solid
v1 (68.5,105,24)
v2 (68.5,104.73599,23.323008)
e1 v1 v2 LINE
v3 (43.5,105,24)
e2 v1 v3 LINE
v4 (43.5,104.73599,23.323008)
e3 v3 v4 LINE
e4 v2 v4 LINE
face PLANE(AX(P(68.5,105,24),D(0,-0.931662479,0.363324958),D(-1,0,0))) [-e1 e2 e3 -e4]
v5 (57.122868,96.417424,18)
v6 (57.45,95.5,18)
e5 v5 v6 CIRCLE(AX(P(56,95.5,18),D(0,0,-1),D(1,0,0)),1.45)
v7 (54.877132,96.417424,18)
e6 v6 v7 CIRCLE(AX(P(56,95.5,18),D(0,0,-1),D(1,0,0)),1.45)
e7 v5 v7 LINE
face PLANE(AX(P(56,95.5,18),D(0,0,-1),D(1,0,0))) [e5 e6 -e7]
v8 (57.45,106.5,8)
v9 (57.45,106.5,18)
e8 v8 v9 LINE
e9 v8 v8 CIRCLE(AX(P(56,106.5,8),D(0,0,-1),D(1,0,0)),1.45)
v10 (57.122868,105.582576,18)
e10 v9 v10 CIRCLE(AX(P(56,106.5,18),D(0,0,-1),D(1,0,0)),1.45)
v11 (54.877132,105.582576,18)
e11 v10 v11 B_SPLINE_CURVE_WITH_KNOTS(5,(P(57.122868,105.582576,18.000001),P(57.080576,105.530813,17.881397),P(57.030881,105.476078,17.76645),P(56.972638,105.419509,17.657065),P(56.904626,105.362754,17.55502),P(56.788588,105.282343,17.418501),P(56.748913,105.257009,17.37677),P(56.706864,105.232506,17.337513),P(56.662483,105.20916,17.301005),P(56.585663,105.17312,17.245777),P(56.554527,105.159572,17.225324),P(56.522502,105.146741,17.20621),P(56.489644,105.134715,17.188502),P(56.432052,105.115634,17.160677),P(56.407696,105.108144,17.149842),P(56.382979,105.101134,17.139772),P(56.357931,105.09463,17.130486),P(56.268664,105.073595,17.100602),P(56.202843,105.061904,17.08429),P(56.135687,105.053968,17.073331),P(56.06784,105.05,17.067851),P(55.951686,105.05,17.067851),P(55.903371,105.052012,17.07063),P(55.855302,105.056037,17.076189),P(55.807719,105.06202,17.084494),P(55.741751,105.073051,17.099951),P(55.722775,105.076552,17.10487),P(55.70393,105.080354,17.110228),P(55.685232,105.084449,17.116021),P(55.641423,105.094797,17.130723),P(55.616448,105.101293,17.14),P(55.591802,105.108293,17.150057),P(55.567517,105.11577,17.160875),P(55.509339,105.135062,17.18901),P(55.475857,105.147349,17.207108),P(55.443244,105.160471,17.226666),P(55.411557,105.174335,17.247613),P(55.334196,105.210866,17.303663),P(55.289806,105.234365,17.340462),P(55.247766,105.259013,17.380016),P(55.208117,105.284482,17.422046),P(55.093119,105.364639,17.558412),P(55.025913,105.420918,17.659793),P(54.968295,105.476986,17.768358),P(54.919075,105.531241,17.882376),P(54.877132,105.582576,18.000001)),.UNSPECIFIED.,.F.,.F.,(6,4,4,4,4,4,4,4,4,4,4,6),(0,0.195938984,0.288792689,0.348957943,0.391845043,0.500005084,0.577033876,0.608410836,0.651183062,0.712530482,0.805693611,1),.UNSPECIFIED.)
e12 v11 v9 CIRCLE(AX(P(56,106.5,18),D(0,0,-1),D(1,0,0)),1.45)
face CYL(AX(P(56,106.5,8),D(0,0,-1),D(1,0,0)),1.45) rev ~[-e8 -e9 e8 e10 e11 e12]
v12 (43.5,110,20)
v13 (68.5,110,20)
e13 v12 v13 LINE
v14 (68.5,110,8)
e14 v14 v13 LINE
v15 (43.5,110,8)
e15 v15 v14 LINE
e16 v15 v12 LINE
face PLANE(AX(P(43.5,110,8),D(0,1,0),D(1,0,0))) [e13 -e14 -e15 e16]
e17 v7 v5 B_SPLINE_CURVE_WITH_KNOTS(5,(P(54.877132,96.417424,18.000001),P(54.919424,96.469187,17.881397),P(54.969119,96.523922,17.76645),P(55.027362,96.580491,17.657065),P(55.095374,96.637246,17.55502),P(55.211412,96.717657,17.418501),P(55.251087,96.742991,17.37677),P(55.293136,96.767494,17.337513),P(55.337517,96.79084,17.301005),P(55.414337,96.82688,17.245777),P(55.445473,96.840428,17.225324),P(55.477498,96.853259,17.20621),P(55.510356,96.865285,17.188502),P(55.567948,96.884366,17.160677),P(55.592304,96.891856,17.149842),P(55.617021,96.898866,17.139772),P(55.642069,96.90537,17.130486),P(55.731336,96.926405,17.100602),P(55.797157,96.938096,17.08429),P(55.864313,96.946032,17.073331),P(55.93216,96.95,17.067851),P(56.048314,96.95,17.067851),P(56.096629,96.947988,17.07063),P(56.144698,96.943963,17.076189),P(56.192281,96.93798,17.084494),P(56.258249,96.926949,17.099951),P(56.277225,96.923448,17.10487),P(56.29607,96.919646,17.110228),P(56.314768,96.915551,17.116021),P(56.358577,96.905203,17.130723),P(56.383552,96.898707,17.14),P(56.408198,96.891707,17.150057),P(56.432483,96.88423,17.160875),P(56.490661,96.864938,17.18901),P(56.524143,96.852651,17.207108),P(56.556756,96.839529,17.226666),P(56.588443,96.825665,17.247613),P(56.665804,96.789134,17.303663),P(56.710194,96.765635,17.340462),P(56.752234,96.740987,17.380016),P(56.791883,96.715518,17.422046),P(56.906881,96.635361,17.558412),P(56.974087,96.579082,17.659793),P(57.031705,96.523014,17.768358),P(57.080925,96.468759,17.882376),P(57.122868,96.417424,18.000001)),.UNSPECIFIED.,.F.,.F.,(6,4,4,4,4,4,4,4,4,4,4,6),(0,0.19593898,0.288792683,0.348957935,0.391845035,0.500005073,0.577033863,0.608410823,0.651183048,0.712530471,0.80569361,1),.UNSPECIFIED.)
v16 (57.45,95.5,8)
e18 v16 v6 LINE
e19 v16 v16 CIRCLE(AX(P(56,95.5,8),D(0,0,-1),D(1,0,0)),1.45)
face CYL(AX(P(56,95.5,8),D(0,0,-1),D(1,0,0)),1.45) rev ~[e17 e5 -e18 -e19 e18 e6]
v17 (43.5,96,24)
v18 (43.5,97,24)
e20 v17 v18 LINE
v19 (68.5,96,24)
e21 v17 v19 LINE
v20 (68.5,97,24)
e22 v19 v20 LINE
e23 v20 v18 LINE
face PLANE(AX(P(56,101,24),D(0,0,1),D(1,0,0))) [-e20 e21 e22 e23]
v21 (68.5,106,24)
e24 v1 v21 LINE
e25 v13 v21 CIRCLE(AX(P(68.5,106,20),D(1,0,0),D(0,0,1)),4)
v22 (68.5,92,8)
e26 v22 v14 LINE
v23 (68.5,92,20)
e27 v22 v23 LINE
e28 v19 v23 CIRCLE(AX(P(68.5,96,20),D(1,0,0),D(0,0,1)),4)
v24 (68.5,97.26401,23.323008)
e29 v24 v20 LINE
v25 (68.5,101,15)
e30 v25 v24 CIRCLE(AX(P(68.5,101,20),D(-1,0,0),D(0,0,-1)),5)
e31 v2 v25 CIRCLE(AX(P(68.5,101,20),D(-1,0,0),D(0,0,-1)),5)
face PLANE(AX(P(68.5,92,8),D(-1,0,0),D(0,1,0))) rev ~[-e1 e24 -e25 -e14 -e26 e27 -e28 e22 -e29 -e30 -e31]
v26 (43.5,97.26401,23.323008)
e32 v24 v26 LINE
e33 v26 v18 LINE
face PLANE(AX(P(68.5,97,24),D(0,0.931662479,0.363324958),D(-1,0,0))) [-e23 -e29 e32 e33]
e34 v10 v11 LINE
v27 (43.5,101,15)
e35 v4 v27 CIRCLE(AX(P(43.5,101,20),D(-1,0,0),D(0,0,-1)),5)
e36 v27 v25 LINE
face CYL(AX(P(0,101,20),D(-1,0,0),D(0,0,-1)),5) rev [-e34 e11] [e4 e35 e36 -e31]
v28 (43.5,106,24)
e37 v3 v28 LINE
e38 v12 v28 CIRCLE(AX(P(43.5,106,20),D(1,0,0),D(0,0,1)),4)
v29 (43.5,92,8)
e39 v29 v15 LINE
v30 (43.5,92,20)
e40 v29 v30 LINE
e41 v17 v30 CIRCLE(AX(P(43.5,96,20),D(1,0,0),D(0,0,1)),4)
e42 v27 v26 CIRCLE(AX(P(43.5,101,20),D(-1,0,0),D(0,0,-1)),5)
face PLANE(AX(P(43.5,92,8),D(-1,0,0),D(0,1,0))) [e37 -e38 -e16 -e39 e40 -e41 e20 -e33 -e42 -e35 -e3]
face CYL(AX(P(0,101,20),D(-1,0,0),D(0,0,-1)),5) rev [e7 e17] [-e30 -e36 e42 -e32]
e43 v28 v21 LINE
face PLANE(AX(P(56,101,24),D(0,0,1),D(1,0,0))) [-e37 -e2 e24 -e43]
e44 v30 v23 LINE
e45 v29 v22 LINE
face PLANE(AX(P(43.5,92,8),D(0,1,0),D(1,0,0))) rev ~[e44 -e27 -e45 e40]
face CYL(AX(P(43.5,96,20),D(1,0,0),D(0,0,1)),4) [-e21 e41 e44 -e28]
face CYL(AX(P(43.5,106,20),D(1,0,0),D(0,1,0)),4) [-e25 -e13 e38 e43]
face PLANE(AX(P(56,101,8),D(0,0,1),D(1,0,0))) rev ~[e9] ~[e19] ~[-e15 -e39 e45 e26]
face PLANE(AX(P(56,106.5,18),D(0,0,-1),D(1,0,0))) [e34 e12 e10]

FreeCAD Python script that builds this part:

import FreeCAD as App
import Part
import Sketcher
from FreeCAD import Vector
Q = App.Units.Quantity


def edges_at(feature, points):
    """Names of the edges that pass closest to the given points."""
    edges = feature.Shape.Edges
    near = lambda p: min(range(len(edges)), key=lambda i: edges[i].distToShape(Part.Vertex(*p))[0])
    return sorted({f"Edge{near(p) + 1}" for p in points})


def add_polygon(sketch, points):
    """Adds a closed chain of lines whose ends are joined by coincident constraints."""
    first, n = sketch.GeometryCount, len(points)
    for a, b in zip(points, points[1:] + points[:1]):
        sketch.addGeometry(Part.LineSegment(App.Vector(*a, 0), App.Vector(*b, 0)), False)
    for i in range(n):
        sketch.addConstraint(Sketcher.Constraint("Coincident", first + i, 2, first + (i + 1) % n, 1))

doc = App.newDocument("Part")
params = doc.addObject("Spreadsheet::Sheet", "Params")
for row, (alias, value) in enumerate([
    ("sketch1_diameter", "10 mm"),
    ("pad1_length", "200 mm"),
    ("sketch2_width", "25 mm"),
    ("sketch2_height", "18 mm"),
    ("pad2_length", "16 mm"),
    ("sketch3_diameter", "2.9 mm"),
    ("pocket1_length", "10 mm"),
    ("fillet_radius", "4 mm"),
    ("chamfer_size", "1 mm"),
], start=1):
    params.set(f"A{row}", alias)
    params.set(f"B{row}", "=" + value)
    params.setAlias(f"B{row}", alias)

body = doc.addObject("PartDesign::Body", "Body")

# Sketch on XY plane
sketch1 = body.newObject("Sketcher::SketchObject", "Sketch")
sketch1.AttachmentSupport = (doc.getObject("XY_Plane"), [""])
sketch1.MapMode = "FlatFace"
sketch1.addGeometry(Part.Circle(Vector(0, 0, 0), Vector(0, 0, 1), 5), False)
sketch1.addConstraint(Sketcher.Constraint("Coincident", 0, 3, -1, 1))
sketch1.addConstraint(Sketcher.Constraint("Diameter", 0, Q("10 mm")))
sketch1.setExpression("Constraints[1]", "Params.sketch1_diameter")
pad1 = body.newObject("PartDesign::Pad", "Pad")
pad1.Profile = sketch1
pad1.setExpression("Length", "Params.pad1_length")
body2 = doc.addObject("PartDesign::Body", "Body001")
doc.recompute()

body.Placement = App.Placement(Vector(0, 0, 0), App.Rotation(Vector(0, 1, 0), 90))
boolean = body2.newObject("PartDesign::Boolean", "Boolean")
boolean.Type = "Fuse"
boolean.addObjects([body])
body3 = doc.addObject("PartDesign::Body", "Body002")
doc.recompute()

body2.Placement = App.Placement(Vector(0, 121, 20), App.Rotation(Vector(0, 0, 1), 0))
boolean2 = body3.newObject("PartDesign::Boolean", "Boolean001")
boolean2.Type = "Fuse"
boolean2.addObjects([body2])
body4 = doc.addObject("PartDesign::Body", "Body003")

# Sketch on XY plane
sketch2 = body4.newObject("Sketcher::SketchObject", "Sketch001")
sketch2.AttachmentSupport = (doc.getObject("XY_Plane003"), [""])
sketch2.MapMode = "FlatFace"
sketch2.AttachmentOffset = App.Placement(Vector(0, 0, 8), App.Rotation())
add_polygon(sketch2, [(44, 130), (44, 112), (68, 112), (68, 130)])  # lines 0-3
sketch2.addConstraint(Sketcher.Constraint("Vertical", 0))
sketch2.addConstraint(Sketcher.Constraint("Horizontal", 1))
sketch2.addConstraint(Sketcher.Constraint("Vertical", 2))
sketch2.addConstraint(Sketcher.Constraint("Horizontal", 3))
sketch2.addConstraint(Sketcher.Constraint("DistanceX", 1, 1, 1, 2, Q("25 mm")))
sketch2.addConstraint(Sketcher.Constraint("DistanceY", 0, 2, 0, 1, Q("18 mm")))
sketch2.addConstraint(Sketcher.Constraint("DistanceY", -1, 1, 0, 2, Q("112 mm")))
sketch2.addConstraint(Sketcher.Constraint("DistanceX", -1, 1, 0, 2, Q("43.5 mm")))
sketch2.setExpression("Constraints[8]", "Params.sketch2_width")
sketch2.setExpression("Constraints[9]", "Params.sketch2_height")
pad2 = body4.newObject("PartDesign::Pad", "Pad001")
pad2.Profile = sketch2
pad2.setExpression("Length", "Params.pad2_length")

# Sketch on XY plane
sketch3 = body4.newObject("Sketcher::SketchObject", "Sketch002")
sketch3.AttachmentSupport = (doc.getObject("XY_Plane003"), [""])
sketch3.MapMode = "FlatFace"
sketch3.AttachmentOffset = App.Placement(Vector(0, 0, 8), App.Rotation())
sketch3.addGeometry(Part.Circle(Vector(56, 115.5, 0), Vector(0, 0, 1), 1.4), False)
sketch3.addGeometry(Part.Circle(Vector(56, 126.5, 0), Vector(0, 0, 1), 1.4), False)
sketch3.addConstraint(Sketcher.Constraint("Equal", 0, 1))
sketch3.addConstraint(Sketcher.Constraint("Vertical", 0, 3, 1, 3))
sketch3.addConstraint(Sketcher.Constraint("Diameter", 0, Q("2.9 mm")))
sketch3.addConstraint(Sketcher.Constraint("DistanceX", -1, 1, 0, 3, Q("56 mm")))
sketch3.addConstraint(Sketcher.Constraint("DistanceY", 0, 3, 1, 3, Q("11 mm")))
sketch3.addConstraint(Sketcher.Constraint("DistanceY", -1, 1, 0, 3, Q("115.5 mm")))
sketch3.setExpression("Constraints[2]", "Params.sketch3_diameter")
pocket1 = body4.newObject("PartDesign::Pocket", "Pocket")
pocket1.Profile = sketch3
pocket1.setExpression("Length", "Params.pocket1_length")
pocket1.Reversed = True
doc.recompute()

boolean3 = body4.newObject("PartDesign::Boolean", "Boolean002")
boolean3.Type = "Cut"
boolean3.addObjects([body3])
body5 = doc.addObject("PartDesign::Body", "Body004")
doc.recompute()

body4.Placement = App.Placement(Vector(0, -20, 0), App.Rotation(Vector(0, 0, 1), 0))
boolean4 = body5.newObject("PartDesign::Boolean", "Boolean003")
boolean4.Type = "Fuse"
boolean4.addObjects([body4])
doc.recompute()

fillet = body5.newObject("PartDesign::Fillet", "Fillet")
fillet.Base = (boolean4, edges_at(boolean4, [(56, 110, 24), (56, 92, 24)]))
fillet.setExpression("Radius", "Params.fillet_radius")
doc.recompute()

chamfer = body5.newObject("PartDesign::Chamfer", "Chamfer")
chamfer.Base = (fillet, edges_at(fillet, [(56, 104, 24), (56, 98, 24)]))
chamfer.setExpression("Size", "Params.chamfer_size")

doc.recompute()
